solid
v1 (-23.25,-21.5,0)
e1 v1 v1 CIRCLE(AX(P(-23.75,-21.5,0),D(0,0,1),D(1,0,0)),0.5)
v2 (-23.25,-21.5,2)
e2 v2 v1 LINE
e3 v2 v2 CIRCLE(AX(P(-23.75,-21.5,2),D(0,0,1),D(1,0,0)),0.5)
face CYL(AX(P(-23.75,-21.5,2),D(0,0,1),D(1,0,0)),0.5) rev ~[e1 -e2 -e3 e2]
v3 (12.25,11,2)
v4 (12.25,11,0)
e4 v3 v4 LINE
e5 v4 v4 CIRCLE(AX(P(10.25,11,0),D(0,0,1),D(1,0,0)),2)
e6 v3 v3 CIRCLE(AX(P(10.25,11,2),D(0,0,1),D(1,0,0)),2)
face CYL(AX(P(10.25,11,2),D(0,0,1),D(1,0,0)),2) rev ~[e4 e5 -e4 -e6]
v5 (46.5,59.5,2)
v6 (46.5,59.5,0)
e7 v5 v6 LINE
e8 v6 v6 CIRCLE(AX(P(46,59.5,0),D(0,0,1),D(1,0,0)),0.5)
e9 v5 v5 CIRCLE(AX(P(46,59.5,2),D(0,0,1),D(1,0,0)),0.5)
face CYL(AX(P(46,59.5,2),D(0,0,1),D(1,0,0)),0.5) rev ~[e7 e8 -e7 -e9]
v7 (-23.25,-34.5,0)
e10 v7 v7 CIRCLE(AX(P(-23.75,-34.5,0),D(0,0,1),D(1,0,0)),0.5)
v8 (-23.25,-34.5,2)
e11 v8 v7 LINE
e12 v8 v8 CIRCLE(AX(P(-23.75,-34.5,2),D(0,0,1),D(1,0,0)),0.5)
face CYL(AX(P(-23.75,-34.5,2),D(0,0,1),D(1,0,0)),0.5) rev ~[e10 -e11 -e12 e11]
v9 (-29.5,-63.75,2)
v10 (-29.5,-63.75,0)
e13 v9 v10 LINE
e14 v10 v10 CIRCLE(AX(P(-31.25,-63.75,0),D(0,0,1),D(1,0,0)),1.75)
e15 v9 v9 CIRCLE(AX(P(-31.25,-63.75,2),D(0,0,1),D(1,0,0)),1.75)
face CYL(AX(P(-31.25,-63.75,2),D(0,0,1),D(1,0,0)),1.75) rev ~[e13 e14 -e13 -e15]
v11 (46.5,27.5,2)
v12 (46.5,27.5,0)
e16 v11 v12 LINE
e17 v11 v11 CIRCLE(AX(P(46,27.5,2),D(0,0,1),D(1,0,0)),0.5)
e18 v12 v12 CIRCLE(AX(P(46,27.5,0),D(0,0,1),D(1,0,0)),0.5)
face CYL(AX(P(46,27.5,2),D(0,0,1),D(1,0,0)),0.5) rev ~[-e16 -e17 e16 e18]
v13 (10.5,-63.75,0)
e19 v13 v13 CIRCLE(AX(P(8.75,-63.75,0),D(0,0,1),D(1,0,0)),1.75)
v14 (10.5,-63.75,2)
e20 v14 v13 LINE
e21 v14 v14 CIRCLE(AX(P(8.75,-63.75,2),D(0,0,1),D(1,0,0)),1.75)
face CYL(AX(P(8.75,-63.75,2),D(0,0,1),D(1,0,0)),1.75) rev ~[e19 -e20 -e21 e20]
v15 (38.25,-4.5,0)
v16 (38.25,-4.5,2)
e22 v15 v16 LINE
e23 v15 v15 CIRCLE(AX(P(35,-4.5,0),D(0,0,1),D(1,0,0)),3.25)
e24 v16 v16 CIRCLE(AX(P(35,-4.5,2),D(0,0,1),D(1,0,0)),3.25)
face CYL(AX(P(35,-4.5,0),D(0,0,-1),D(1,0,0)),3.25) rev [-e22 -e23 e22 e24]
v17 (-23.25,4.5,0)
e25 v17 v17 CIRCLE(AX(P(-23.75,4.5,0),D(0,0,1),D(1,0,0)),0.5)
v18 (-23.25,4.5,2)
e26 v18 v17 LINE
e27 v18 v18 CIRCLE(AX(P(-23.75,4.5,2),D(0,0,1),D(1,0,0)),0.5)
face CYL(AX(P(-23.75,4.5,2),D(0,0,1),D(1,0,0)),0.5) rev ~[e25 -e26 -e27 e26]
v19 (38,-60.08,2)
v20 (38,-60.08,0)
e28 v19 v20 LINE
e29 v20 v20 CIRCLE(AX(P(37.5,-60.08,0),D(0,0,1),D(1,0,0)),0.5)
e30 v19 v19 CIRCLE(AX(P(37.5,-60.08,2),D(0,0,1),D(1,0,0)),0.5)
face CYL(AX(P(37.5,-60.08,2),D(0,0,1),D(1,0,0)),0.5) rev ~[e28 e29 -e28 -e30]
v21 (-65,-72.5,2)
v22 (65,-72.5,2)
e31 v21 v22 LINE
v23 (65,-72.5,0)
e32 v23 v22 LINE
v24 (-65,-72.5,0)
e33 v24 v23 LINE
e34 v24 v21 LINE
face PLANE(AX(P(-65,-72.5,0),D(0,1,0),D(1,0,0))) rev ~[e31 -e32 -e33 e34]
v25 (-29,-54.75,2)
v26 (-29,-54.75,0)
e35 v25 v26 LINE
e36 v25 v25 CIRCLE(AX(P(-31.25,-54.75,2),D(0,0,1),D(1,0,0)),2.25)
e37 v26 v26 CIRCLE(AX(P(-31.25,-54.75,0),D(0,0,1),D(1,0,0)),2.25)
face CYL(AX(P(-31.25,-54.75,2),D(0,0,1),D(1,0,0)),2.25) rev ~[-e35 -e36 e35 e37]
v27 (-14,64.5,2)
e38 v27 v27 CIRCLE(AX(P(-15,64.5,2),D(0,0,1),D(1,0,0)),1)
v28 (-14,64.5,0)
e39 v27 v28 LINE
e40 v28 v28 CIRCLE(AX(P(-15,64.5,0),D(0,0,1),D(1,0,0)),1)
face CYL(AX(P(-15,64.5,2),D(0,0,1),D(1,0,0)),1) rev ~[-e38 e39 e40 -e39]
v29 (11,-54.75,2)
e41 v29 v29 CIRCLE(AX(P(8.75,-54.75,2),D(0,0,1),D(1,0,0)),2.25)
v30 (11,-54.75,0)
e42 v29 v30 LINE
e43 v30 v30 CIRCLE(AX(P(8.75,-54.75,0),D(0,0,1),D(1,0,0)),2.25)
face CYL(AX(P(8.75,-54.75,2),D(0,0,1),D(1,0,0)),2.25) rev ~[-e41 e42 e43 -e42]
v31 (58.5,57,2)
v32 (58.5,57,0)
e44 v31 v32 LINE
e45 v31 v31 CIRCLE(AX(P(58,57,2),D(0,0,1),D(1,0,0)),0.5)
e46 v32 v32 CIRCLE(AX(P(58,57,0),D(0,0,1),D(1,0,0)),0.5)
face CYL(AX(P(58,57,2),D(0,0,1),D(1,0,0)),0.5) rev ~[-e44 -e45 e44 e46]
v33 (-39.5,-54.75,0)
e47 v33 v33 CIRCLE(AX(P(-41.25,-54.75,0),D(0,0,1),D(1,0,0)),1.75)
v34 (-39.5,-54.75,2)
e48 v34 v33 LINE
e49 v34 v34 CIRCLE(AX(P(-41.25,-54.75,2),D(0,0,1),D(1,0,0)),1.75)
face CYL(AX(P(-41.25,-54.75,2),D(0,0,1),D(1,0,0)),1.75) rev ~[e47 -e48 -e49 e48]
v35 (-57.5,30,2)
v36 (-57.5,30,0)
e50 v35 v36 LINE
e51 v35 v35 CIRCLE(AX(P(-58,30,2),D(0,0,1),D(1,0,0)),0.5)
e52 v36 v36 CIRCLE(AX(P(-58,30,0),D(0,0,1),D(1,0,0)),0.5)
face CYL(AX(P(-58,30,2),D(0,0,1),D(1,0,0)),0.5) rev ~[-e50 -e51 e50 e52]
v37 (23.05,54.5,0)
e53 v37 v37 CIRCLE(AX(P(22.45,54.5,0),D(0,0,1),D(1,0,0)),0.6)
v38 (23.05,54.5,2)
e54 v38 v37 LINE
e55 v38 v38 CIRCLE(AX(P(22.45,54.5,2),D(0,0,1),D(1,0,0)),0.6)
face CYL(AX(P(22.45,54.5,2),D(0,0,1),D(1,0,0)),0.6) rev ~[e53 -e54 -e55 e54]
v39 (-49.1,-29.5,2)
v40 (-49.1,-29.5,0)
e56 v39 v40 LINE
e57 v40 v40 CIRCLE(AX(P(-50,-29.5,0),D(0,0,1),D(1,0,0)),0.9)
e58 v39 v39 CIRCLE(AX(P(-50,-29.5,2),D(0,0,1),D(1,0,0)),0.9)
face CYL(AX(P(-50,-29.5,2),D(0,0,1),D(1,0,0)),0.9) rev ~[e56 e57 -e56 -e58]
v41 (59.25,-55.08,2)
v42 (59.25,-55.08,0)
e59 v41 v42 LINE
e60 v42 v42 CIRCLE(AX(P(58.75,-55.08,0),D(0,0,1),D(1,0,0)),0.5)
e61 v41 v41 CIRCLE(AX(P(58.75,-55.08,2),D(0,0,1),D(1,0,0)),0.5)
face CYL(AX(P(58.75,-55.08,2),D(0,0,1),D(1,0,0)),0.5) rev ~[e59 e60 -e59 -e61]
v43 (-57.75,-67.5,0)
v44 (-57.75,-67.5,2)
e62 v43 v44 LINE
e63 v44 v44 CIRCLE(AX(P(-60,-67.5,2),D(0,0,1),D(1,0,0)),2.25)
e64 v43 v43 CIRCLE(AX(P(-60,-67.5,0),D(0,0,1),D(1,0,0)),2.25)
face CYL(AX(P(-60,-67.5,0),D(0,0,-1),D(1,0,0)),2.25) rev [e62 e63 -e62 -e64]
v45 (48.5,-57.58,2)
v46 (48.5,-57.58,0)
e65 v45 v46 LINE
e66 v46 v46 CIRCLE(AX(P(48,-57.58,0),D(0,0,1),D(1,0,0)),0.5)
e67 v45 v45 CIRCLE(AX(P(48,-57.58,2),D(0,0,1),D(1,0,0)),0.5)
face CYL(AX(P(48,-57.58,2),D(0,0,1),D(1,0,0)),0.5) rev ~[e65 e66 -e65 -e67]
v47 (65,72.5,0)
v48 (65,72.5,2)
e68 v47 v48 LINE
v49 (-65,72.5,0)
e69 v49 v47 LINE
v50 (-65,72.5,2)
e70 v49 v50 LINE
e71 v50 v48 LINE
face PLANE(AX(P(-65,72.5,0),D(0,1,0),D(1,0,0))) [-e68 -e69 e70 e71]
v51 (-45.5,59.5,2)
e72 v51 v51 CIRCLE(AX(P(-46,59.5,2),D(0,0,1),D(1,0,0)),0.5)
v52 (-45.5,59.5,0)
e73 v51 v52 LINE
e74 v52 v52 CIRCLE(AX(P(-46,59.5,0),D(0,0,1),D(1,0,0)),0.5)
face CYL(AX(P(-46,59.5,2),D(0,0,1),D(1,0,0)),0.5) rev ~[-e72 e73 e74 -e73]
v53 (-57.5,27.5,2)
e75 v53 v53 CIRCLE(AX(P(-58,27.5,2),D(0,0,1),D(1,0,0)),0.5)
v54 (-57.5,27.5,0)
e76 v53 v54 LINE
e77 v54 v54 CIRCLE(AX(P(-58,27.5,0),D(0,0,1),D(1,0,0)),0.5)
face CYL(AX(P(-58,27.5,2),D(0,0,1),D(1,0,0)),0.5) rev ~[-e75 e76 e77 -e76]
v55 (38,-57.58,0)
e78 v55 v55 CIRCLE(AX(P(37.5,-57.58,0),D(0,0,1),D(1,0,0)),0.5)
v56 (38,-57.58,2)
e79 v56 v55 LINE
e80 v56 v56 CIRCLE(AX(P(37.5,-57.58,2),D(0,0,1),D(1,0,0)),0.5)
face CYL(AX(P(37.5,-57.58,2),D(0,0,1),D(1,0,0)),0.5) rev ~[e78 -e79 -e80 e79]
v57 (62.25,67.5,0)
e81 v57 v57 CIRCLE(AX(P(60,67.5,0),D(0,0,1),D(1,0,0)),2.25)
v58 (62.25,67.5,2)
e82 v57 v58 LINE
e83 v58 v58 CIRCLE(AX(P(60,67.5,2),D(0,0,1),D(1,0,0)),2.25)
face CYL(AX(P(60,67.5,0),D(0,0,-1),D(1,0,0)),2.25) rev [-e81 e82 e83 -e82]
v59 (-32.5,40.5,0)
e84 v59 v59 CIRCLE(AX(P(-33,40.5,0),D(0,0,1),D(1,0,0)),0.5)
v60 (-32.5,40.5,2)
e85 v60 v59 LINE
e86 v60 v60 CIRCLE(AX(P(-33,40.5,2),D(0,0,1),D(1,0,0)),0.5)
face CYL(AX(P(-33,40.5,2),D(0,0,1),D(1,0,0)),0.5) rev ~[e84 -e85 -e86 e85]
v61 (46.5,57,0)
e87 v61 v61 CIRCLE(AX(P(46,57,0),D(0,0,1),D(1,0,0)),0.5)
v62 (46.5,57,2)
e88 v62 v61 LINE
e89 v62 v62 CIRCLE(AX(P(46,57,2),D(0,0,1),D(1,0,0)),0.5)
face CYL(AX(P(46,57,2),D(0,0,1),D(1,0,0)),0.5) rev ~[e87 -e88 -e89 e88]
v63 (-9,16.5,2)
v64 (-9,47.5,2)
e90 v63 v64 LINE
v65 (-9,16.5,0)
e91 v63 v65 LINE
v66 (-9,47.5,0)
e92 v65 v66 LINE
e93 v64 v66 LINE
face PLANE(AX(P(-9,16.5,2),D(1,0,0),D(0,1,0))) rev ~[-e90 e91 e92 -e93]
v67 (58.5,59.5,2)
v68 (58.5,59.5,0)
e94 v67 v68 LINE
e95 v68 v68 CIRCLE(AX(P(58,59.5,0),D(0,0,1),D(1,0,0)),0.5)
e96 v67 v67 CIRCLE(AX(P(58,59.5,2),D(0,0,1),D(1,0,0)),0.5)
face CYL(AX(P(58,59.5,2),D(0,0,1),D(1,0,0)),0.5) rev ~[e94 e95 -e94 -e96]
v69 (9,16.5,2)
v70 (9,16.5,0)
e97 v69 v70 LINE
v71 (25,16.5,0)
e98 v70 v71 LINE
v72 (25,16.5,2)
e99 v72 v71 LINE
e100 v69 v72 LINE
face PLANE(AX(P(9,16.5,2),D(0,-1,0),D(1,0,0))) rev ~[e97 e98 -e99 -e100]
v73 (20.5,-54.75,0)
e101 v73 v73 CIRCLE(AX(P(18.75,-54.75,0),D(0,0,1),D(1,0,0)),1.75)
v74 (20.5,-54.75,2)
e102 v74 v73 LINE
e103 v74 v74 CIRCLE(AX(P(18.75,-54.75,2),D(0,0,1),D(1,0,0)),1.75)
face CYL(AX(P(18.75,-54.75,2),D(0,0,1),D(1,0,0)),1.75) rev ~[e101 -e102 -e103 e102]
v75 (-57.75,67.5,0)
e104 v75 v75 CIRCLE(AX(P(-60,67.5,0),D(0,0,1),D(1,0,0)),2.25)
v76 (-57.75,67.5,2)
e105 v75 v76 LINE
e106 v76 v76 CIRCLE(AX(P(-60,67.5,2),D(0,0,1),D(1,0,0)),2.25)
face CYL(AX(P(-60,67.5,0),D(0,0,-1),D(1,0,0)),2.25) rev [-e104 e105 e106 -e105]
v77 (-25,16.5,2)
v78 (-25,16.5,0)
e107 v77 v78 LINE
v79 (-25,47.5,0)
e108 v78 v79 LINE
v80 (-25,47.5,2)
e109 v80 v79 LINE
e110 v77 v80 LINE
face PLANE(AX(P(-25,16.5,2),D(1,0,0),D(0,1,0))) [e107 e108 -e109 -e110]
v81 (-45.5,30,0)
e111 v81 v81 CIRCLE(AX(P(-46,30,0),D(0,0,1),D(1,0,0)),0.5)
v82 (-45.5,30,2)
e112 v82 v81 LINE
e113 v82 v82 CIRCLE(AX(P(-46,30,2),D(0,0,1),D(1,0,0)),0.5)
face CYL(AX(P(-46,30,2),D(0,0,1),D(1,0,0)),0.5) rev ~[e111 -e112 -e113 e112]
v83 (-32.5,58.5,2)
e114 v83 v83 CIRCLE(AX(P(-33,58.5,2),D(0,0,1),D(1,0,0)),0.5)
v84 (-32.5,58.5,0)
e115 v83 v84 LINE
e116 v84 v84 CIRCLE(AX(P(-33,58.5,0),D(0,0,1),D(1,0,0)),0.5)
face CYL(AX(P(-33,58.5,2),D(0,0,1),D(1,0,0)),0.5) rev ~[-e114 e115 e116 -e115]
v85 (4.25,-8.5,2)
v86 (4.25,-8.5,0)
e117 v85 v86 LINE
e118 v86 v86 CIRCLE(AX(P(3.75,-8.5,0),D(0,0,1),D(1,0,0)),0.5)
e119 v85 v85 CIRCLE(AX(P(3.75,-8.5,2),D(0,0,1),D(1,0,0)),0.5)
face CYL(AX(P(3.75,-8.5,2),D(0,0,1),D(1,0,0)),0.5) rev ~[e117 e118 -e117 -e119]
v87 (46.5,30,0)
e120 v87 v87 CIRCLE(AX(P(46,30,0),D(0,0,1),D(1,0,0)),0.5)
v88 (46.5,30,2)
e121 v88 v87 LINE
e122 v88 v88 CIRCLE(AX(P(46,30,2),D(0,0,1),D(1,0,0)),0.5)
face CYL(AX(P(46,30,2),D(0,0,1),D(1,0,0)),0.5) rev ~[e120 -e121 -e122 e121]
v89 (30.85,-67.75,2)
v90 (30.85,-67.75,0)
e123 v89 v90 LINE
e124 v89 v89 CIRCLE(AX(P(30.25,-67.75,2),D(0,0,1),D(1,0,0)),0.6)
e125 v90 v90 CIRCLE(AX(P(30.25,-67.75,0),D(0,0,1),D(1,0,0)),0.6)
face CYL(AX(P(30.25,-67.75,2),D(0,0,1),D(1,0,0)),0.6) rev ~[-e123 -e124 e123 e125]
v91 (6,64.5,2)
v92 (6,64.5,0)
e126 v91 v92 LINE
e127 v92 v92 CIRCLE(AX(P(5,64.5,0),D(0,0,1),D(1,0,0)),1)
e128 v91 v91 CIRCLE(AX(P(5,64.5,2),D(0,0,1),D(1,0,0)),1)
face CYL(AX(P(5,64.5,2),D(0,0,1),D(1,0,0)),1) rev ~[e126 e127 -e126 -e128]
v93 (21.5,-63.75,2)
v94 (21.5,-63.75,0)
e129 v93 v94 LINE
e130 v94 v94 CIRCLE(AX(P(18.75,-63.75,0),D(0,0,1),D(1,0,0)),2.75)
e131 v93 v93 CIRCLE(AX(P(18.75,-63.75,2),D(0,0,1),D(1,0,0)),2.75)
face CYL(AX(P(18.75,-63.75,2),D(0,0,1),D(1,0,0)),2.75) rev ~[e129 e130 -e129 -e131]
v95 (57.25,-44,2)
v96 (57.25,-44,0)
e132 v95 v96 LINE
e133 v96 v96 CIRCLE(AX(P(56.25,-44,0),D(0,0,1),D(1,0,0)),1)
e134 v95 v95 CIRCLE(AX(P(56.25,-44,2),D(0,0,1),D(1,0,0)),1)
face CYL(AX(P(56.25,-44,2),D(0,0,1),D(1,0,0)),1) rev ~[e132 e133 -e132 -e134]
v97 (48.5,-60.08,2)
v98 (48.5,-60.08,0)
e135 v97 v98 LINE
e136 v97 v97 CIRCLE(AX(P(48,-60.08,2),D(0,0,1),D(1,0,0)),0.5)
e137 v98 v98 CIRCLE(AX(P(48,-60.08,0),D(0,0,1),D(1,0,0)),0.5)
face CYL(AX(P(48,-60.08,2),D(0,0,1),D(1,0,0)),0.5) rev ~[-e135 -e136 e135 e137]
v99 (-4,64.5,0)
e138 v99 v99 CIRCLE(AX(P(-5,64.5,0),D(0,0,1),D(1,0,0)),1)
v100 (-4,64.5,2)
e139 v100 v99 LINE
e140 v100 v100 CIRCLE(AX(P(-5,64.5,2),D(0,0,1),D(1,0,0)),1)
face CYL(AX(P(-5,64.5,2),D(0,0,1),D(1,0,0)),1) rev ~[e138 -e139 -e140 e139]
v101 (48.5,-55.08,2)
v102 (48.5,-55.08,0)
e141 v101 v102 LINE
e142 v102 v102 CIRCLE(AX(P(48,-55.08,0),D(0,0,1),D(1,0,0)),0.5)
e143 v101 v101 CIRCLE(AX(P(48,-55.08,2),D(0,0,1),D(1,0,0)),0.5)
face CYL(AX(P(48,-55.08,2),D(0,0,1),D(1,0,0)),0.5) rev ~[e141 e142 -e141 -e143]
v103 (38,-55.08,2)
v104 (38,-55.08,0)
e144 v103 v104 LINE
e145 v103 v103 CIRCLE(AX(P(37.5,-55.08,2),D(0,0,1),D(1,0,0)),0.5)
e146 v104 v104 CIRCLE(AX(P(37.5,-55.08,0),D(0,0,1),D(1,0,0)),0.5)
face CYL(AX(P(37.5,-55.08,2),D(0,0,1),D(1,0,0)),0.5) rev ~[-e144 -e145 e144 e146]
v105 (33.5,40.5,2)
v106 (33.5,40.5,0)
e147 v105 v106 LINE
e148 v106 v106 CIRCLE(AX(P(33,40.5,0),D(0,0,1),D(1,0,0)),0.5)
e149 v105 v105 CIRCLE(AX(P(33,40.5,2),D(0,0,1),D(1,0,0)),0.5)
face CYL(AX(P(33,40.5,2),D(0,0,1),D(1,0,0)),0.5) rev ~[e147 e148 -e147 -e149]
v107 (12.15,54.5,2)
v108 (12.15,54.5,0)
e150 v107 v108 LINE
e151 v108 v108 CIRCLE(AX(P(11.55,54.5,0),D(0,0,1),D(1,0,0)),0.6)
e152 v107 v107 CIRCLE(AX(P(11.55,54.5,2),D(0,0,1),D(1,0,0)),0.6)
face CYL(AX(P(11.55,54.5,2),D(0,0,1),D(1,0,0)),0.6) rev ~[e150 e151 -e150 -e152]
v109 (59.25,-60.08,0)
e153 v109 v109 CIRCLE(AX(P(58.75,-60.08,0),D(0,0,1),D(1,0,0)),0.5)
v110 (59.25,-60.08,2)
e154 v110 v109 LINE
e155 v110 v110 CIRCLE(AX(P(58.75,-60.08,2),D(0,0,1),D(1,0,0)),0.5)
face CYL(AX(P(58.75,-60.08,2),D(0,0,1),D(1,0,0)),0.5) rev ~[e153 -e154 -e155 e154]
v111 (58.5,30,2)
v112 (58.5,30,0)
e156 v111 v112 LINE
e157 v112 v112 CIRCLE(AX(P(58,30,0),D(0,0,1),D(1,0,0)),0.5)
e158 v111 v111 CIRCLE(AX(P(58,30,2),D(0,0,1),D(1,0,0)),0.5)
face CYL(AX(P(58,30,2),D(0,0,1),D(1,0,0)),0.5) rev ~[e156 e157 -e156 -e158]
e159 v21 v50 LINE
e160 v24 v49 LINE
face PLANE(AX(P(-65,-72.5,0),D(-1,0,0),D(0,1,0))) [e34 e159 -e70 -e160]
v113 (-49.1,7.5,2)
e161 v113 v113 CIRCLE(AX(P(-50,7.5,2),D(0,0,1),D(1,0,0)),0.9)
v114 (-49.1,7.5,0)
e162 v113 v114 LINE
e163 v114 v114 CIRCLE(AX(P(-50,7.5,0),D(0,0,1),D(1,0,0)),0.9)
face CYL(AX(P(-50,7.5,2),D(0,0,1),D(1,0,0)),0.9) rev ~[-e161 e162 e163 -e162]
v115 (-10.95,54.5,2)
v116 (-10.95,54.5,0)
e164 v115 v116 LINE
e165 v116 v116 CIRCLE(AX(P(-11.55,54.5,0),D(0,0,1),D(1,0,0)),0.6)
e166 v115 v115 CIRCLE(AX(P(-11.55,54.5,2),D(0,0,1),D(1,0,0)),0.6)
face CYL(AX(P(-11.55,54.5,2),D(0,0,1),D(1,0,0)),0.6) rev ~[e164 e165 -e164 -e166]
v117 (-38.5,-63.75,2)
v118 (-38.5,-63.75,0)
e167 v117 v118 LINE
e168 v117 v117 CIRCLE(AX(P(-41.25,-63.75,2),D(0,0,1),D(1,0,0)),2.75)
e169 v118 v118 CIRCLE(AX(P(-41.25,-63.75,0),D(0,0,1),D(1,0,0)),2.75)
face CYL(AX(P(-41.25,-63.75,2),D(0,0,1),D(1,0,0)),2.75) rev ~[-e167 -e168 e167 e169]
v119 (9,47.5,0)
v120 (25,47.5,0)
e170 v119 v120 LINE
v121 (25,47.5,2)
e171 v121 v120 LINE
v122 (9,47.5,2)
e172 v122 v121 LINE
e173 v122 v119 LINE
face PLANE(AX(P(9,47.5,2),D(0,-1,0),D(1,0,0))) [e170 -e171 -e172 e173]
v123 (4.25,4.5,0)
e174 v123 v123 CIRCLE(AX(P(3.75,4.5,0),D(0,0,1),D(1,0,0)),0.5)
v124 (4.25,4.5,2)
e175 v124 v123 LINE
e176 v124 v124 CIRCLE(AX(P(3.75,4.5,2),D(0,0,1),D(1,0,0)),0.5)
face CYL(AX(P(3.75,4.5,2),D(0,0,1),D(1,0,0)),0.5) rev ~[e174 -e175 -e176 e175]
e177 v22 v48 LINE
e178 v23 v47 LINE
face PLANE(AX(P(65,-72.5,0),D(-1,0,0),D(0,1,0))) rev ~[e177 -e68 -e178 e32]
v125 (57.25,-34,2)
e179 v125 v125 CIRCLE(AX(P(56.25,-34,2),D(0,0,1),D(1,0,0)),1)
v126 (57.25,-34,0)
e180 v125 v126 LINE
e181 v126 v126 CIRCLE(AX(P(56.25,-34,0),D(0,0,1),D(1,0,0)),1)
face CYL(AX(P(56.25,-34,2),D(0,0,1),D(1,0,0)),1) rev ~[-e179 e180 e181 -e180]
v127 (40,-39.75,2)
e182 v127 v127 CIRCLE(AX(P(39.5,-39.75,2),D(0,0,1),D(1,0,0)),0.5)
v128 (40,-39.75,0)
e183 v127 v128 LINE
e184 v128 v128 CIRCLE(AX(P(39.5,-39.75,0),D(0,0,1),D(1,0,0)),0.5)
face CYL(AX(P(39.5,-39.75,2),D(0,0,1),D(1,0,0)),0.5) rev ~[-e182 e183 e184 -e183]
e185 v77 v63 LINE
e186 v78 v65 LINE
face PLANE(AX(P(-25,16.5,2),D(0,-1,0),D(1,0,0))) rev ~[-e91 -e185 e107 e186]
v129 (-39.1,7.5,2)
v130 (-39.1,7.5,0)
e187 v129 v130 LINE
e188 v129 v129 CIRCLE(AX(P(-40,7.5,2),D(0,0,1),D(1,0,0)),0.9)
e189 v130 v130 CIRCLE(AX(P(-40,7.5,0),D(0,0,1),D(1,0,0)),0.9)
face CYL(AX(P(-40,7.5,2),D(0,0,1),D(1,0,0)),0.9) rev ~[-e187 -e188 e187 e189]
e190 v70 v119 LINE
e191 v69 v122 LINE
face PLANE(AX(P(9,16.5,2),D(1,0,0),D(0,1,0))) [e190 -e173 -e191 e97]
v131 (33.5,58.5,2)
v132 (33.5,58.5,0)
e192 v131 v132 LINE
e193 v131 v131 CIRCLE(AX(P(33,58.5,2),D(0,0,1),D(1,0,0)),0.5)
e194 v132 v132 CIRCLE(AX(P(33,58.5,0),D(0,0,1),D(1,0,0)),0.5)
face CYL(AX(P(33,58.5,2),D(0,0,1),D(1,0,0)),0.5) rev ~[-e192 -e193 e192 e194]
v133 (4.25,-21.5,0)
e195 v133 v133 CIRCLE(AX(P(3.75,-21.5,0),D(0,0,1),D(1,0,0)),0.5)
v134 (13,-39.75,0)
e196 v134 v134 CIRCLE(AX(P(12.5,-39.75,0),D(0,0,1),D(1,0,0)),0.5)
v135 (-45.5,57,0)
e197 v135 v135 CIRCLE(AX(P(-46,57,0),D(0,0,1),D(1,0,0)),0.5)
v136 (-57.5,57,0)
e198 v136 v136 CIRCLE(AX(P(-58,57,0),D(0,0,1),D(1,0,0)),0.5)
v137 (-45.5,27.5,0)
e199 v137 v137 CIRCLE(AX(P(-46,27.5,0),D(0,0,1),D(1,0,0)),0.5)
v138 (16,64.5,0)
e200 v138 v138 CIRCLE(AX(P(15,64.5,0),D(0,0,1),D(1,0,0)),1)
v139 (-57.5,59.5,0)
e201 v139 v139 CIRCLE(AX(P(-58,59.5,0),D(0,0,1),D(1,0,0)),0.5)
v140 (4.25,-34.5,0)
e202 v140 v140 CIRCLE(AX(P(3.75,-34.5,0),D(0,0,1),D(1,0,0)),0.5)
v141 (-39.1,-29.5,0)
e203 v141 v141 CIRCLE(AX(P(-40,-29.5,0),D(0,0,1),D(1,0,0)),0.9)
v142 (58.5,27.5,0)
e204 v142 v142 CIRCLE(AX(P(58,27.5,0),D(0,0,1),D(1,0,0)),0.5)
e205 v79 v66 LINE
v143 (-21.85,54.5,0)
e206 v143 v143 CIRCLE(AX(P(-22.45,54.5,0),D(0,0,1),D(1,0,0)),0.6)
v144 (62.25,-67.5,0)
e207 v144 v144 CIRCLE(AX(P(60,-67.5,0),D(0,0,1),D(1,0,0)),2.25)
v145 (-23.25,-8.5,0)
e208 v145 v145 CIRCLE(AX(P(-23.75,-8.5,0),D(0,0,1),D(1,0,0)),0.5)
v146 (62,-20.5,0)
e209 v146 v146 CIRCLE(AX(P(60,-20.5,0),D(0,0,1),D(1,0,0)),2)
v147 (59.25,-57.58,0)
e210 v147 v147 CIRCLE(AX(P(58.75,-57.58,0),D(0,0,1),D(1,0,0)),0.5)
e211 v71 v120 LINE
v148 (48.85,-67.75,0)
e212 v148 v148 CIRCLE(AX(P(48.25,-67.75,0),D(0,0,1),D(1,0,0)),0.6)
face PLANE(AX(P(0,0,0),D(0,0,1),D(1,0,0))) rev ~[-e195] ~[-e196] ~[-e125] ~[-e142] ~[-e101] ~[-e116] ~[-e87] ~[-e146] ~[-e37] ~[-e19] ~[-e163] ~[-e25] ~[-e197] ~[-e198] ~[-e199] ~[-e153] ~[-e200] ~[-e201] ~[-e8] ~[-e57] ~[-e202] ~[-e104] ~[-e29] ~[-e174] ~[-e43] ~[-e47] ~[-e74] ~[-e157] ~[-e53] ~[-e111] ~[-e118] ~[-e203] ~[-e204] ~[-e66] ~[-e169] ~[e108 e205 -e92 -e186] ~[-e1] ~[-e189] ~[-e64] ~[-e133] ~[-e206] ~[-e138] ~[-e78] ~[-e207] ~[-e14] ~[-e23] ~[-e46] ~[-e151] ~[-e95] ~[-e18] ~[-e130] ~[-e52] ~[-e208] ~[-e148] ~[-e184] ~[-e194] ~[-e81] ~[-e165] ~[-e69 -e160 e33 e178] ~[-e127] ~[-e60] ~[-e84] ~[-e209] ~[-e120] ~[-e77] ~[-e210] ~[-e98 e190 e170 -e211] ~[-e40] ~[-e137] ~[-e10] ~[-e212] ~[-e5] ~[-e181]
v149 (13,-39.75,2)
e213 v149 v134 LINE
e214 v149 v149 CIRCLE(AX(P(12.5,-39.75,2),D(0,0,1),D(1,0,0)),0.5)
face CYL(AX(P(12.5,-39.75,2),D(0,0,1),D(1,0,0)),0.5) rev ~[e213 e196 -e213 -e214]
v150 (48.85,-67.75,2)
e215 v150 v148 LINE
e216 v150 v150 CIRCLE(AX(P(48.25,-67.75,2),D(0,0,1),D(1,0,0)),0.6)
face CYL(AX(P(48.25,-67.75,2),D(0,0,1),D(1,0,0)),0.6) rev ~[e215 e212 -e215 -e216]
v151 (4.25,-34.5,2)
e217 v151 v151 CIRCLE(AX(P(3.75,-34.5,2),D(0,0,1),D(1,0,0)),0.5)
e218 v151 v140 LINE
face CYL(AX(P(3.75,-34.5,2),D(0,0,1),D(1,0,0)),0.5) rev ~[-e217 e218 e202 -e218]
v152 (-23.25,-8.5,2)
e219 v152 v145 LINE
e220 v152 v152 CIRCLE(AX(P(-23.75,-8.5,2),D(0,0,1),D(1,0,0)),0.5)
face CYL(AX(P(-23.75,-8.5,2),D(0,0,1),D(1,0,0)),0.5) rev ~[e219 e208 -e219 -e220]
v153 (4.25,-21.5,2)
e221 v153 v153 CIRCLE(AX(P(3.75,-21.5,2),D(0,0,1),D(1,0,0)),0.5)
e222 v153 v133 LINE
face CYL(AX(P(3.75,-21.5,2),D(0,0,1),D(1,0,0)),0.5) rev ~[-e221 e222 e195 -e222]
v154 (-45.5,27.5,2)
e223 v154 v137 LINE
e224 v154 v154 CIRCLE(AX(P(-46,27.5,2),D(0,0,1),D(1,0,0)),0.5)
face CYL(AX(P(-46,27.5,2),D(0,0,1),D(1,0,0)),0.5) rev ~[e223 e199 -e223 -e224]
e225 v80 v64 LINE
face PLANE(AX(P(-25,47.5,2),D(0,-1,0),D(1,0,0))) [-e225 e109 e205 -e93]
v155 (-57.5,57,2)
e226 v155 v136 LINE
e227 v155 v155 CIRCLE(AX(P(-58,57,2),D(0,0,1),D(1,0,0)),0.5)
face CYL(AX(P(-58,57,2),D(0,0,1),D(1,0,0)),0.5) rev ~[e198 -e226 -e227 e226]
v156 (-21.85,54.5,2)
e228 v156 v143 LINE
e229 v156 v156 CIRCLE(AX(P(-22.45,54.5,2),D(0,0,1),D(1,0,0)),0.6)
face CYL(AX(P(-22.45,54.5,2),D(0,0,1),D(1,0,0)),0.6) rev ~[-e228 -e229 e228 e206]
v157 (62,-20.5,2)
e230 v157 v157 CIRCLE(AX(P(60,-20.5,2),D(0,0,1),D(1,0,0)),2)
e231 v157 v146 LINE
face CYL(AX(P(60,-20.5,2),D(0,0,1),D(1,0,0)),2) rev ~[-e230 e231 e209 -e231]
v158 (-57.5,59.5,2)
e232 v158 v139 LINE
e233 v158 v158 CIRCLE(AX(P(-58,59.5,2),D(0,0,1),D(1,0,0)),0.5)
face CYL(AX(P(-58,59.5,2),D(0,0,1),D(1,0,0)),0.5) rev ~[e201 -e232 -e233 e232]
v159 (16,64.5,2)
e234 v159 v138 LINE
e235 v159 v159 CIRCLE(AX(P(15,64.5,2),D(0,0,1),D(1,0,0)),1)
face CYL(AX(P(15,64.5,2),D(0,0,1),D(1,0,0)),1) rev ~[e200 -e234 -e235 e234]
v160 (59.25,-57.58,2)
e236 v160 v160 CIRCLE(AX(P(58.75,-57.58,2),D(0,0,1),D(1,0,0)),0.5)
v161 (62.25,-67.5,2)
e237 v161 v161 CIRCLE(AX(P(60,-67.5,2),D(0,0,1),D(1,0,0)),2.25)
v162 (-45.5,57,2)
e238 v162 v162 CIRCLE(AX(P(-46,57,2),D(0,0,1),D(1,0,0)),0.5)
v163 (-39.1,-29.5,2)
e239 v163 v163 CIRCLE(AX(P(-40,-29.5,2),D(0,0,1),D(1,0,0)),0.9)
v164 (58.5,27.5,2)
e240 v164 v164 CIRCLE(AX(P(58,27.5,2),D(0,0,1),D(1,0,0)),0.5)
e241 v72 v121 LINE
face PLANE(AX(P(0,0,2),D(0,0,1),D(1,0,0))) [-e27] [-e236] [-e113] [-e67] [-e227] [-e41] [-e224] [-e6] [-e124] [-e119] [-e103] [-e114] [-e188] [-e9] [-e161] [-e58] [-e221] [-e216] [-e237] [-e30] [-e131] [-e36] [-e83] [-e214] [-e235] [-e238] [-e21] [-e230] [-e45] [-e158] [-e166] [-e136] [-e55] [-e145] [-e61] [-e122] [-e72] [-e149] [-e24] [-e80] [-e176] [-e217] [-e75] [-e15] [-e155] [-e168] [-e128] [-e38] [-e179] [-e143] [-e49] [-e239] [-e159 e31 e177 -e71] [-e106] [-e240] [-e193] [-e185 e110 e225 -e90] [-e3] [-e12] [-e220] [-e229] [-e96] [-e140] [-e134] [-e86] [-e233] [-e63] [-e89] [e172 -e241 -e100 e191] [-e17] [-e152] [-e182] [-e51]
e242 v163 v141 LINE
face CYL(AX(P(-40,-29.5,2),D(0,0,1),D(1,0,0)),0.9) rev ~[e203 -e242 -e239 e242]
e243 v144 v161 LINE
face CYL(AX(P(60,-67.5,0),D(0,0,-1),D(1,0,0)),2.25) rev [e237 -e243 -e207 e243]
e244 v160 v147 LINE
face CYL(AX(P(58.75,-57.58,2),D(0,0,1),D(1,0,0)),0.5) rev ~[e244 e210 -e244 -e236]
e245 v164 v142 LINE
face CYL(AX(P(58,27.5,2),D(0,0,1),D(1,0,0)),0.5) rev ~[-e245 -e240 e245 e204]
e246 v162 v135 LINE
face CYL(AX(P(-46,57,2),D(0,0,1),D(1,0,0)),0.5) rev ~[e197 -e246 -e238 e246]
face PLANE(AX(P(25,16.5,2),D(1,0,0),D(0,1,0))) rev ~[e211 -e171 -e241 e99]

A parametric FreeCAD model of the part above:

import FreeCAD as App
import Part
import Sketcher
from FreeCAD import Vector
Q = App.Units.Quantity


def add_polygon(sketch, points):
    """Adds a closed chain of lines whose ends are joined by coincident constraints."""
    first, n = sketch.GeometryCount, len(points)
    for a, b in zip(points, points[1:] + points[:1]):
        sketch.addGeometry(Part.LineSegment(App.Vector(*a, 0), App.Vector(*b, 0)), False)
    for i in range(n):
        sketch.addConstraint(Sketcher.Constraint("Coincident", first + i, 2, first + (i + 1) % n, 1))

doc = App.newDocument("Part")
body = doc.addObject("PartDesign::Body", "Body")

sketch1 = body.newObject("Sketcher::SketchObject", "Sketch")
sketch1.AttachmentSupport = (doc.getObject("XY_Plane"), [""])
sketch1.MapMode = "FlatFace"
add_polygon(sketch1, [(-65, 72.5), (-65, -72.5), (65, -72.5), (65, 72.5)])
sketch1.addGeometry(Part.Circle(Vector(-60, -67.5, 0), Vector(0, 0, 1), 2.2), False)
sketch1.addGeometry(Part.Circle(Vector(60, -67.5, 0), Vector(0, 0, 1), 2.2), False)
sketch1.addGeometry(Part.Circle(Vector(35, -4.5, 0), Vector(0, 0, 1), 3.2), False)
sketch1.addGeometry(Part.Circle(Vector(-60, 67.5, 0), Vector(0, 0, 1), 2.2), False)
sketch1.addGeometry(Part.Circle(Vector(60, 67.5, 0), Vector(0, 0, 1), 2.2), False)
sketch1.addConstraint(Sketcher.Constraint("Vertical", 0))
sketch1.addConstraint(Sketcher.Constraint("Horizontal", 1))
sketch1.addConstraint(Sketcher.Constraint("Vertical", 2))
sketch1.addConstraint(Sketcher.Constraint("Horizontal", 3))
sketch1.addConstraint(Sketcher.Constraint("Equal", 4, 5))
sketch1.addConstraint(Sketcher.Constraint("Equal", 5, 7))
sketch1.addConstraint(Sketcher.Constraint("Equal", 7, 8))
sketch1.addConstraint(Sketcher.Constraint("Symmetric", 5, 3, 7, 3, -1, 1))
sketch1.addConstraint(Sketcher.Constraint("Symmetric", 4, 3, 8, 3, -1, 1))
sketch1.addConstraint(Sketcher.Constraint("Symmetric", 0, 2, 2, 2, -1, 1))
sketch1.addConstraint(Sketcher.Constraint("Symmetric", 4, 3, 5, 3, -2))
sketch1.addConstraint(Sketcher.Constraint("Diameter", 4, Q("4.5 mm")))
sketch1.addConstraint(Sketcher.Constraint("Diameter", 6, Q("6.5 mm")))
sketch1.addConstraint(Sketcher.Constraint("DistanceX", 1, 1, 1, 2, Q("130 mm")))
sketch1.addConstraint(Sketcher.Constraint("DistanceY", 0, 2, 0, 1, Q("145 mm")))
sketch1.addConstraint(Sketcher.Constraint("DistanceX", 4, 3, -1, 1, Q("60 mm")))
sketch1.addConstraint(Sketcher.Constraint("DistanceX", -1, 1, 6, 3, Q("35 mm")))
sketch1.addConstraint(Sketcher.Constraint("DistanceY", 5, 3, 6, 3, Q("63 mm")))
sketch1.addConstraint(Sketcher.Constraint("DistanceY", 6, 3, 7, 3, Q("72 mm")))
pad1 = body.newObject("PartDesign::Pad", "Pad")
pad1.Profile = sketch1
pad1.Length = 2

sketch2 = body.newObject("Sketcher::SketchObject", "Sketch001")
sketch2.AttachmentSupport = (doc.getObject("XY_Plane"), [""])
sketch2.MapMode = "FlatFace"
sketch2.AttachmentOffset = App.Placement(Vector(0, 0, 2), App.Rotation())
sketch2.addGeometry(Part.Circle(Vector(-41.2, -54.8, 0), Vector(0, 0, 1), 1.8), False)
sketch2.addGeometry(Part.Circle(Vector(18.8, -54.8, 0), Vector(0, 0, 1), 1.8), False)
sketch2.addGeometry(Part.Circle(Vector(37.5, -55.1, 0), Vector(0, 0, 1), 0.5), False)
sketch2.addGeometry(Part.Circle(Vector(37.5, -57.6, 0), Vector(0, 0, 1), 0.5), False)
sketch2.addGeometry(Part.Circle(Vector(37.5, -60.1, 0), Vector(0, 0, 1), 0.5), False)
sketch2.addGeometry(Part.Circle(Vector(48, -57.6, 0), Vector(0, 0, 1), 0.5), False)
sketch2.addGeometry(Part.Circle(Vector(48, -60.1, 0), Vector(0, 0, 1), 0.5), False)
sketch2.addGeometry(Part.Circle(Vector(48, -55.1, 0), Vector(0, 0, 1), 0.5), False)
sketch2.addGeometry(Part.Circle(Vector(58.8, -55.1, 0), Vector(0, 0, 1), 0.5), False)
sketch2.addGeometry(Part.Circle(Vector(58.8, -57.6, 0), Vector(0, 0, 1), 0.5), False)
sketch2.addGeometry(Part.Circle(Vector(58.8, -60.1, 0), Vector(0, 0, 1), 0.5), False)
sketch2.addGeometry(Part.Circle(Vector(-15, 64.5, 0), Vector(0, 0, 1), 1), False)
sketch2.addGeometry(Part.Circle(Vector(-5, 64.5, 0), Vector(0, 0, 1), 1), False)
sketch2.addGeometry(Part.Circle(Vector(5, 64.5, 0), Vector(0, 0, 1), 1), False)
sketch2.addGeometry(Part.Circle(Vector(15, 64.5, 0), Vector(0, 0, 1), 1), False)
sketch2.addGeometry(Part.Circle(Vector(60, -20.5, 0), Vector(0, 0, 1), 2), False)
sketch2.addGeometry(Part.Circle(Vector(10.2, 11, 0), Vector(0, 0, 1), 2), False)
sketch2.addGeometry(Part.Circle(Vector(-41.2, -63.8, 0), Vector(0, 0, 1), 2.8), False)
sketch2.addGeometry(Part.Circle(Vector(18.8, -63.8, 0), Vector(0, 0, 1), 2.8), False)
sketch2.addGeometry(Part.Circle(Vector(-31.2, -63.8, 0), Vector(0, 0, 1), 1.8), False)
sketch2.addGeometry(Part.Circle(Vector(8.8, -63.8, 0), Vector(0, 0, 1), 1.8), False)
sketch2.addGeometry(Part.Circle(Vector(8.8, -54.8, 0), Vector(0, 0, 1), 2.2), False)
sketch2.addGeometry(Part.Circle(Vector(-31.2, -54.8, 0), Vector(0, 0, 1), 2.2), False)
sketch2.addConstraint(Sketcher.Constraint("Equal", 0, 1))
sketch2.addConstraint(Sketcher.Constraint("Equal", 2, 3))
sketch2.addConstraint(Sketcher.Constraint("Equal", 3, 4))
sketch2.addConstraint(Sketcher.Constraint("Equal", 4, 5))
sketch2.addConstraint(Sketcher.Constraint("Equal", 5, 6))
sketch2.addConstraint(Sketcher.Constraint("Equal", 6, 7))
sketch2.addConstraint(Sketcher.Constraint("Equal", 7, 8))
sketch2.addConstraint(Sketcher.Constraint("Equal", 8, 9))
sketch2.addConstraint(Sketcher.Constraint("Equal", 9, 10))
sketch2.addConstraint(Sketcher.Constraint("Equal", 11, 12))
sketch2.addConstraint(Sketcher.Constraint("Equal", 12, 13))
sketch2.addConstraint(Sketcher.Constraint("Equal", 13, 14))
sketch2.addConstraint(Sketcher.Constraint("Equal", 15, 16))
sketch2.addConstraint(Sketcher.Constraint("Equal", 17, 18))
sketch2.addConstraint(Sketcher.Constraint("Equal", 1, 19))
sketch2.addConstraint(Sketcher.Constraint("Equal", 19, 20))
sketch2.addConstraint(Sketcher.Constraint("Equal", 21, 22))
sketch2.addConstraint(Sketcher.Constraint("Symmetric", 12, 3, 13, 3, -2))
sketch2.addConstraint(Sketcher.Constraint("Symmetric", 11, 3, 14, 3, -2))
sketch2.addConstraint(Sketcher.Constraint("Horizontal", 0, 3, 1, 3))
sketch2.addConstraint(Sketcher.Constraint("Horizontal", 3, 3, 5, 3))
sketch2.addConstraint(Sketcher.Constraint("Horizontal", 4, 3, 6, 3))
sketch2.addConstraint(Sketcher.Constraint("Horizontal", 2, 3, 7, 3))
sketch2.addConstraint(Sketcher.Constraint("Horizontal", 7, 3, 8, 3))
sketch2.addConstraint(Sketcher.Constraint("Horizontal", 5, 3, 9, 3))
sketch2.addConstraint(Sketcher.Constraint("Horizontal", 6, 3, 10, 3))
sketch2.addConstraint(Sketcher.Constraint("Horizontal", 11, 3, 12, 3))
sketch2.addConstraint(Sketcher.Constraint("Horizontal", 17, 3, 18, 3))
sketch2.addConstraint(Sketcher.Constraint("Horizontal", 18, 3, 19, 3))
sketch2.addConstraint(Sketcher.Constraint("Horizontal", 19, 3, 20, 3))
sketch2.addConstraint(Sketcher.Constraint("Horizontal", 1, 3, 21, 3))
sketch2.addConstraint(Sketcher.Constraint("Horizontal", 21, 3, 22, 3))
sketch2.addConstraint(Sketcher.Constraint("Vertical", 2, 3, 3, 3))
sketch2.addConstraint(Sketcher.Constraint("Vertical", 3, 3, 4, 3))
sketch2.addConstraint(Sketcher.Constraint("Vertical", 5, 3, 6, 3))
sketch2.addConstraint(Sketcher.Constraint("Vertical", 6, 3, 7, 3))
sketch2.addConstraint(Sketcher.Constraint("Vertical", 8, 3, 9, 3))
sketch2.addConstraint(Sketcher.Constraint("Vertical", 9, 3, 10, 3))
sketch2.addConstraint(Sketcher.Constraint("Vertical", 0, 3, 17, 3))
sketch2.addConstraint(Sketcher.Constraint("Vertical", 1, 3, 18, 3))
sketch2.addConstraint(Sketcher.Constraint("Vertical", 20, 3, 21, 3))
sketch2.addConstraint(Sketcher.Constraint("Vertical", 19, 3, 22, 3))
sketch2.addConstraint(Sketcher.Constraint("Diameter", 2, Q("1 mm")))
sketch2.addConstraint(Sketcher.Constraint("Diameter", 11, Q("2 mm")))
sketch2.addConstraint(Sketcher.Constraint("Diameter", 15, Q("4 mm")))
sketch2.addConstraint(Sketcher.Constraint("Diameter", 0, Q("3.5 mm")))
sketch2.addConstraint(Sketcher.Constraint("Diameter", 17, Q("5.5 mm")))
sketch2.addConstraint(Sketcher.Constraint("Diameter", 21, Q("4.5 mm")))
sketch2.addConstraint(Sketcher.Constraint("DistanceX", -1, 1, 5, 3, Q("48 mm")))
sketch2.addConstraint(Sketcher.Constraint("DistanceX", 11, 3, -1, 1, Q("15 mm")))
sketch2.addConstraint(Sketcher.Constraint("DistanceX", 12, 3, -1, 1, Q("5 mm")))
sketch2.addConstraint(Sketcher.Constraint("DistanceX", -1, 1, 15, 3, Q("60 mm")))
sketch2.addConstraint(Sketcher.Constraint("DistanceY", -1, 1, 16, 3, Q("11 mm")))
sketch2.addConstraint(Sketcher.Constraint("DistanceX", 0, 3, 1, 3, Q("60 mm")))
sketch2.addConstraint(Sketcher.Constraint("DistanceY", 4, 3, 2, 3, Q("5 mm")))
sketch2.addConstraint(Sketcher.Constraint("DistanceY", 17, 3, 0, 3, Q("9 mm")))
sketch2.addConstraint(Sketcher.Constraint("DistanceX", 17, 3, 19, 3, Q("10 mm")))
sketch2.addConstraint(Sketcher.Constraint("DistanceX", 20, 3, 18, 3, Q("10 mm")))
sketch2.addConstraint(Sketcher.Constraint("DistanceX", -1, 1, 2, 3, Q("37.5 mm")))
sketch2.addConstraint(Sketcher.Constraint("DistanceY", -1, 1, 11, 3, Q("64.5 mm")))
sketch2.addConstraint(Sketcher.Constraint("DistanceY", 15, 3, -1, 1, Q("20.5 mm")))
sketch2.addConstraint(Sketcher.Constraint("DistanceY", 3, 3, 2, 3, Q("2.5 mm")))
sketch2.addConstraint(Sketcher.Constraint("DistanceX", 0, 3, -1, 1, Q("41.25 mm")))
sketch2.addConstraint(Sketcher.Constraint("DistanceY", 0, 3, -1, 1, Q("54.75 mm")))
sketch2.addConstraint(Sketcher.Constraint("DistanceY", 2, 3, -1, 1, Q("55.08 mm")))
sketch2.addConstraint(Sketcher.Constraint("DistanceX", -1, 1, 8, 3, Q("58.75 mm")))
sketch2.addConstraint(Sketcher.Constraint("DistanceX", -1, 1, 16, 3, Q("10.25 mm")))
pocket1 = body.newObject("PartDesign::Pocket", "Pocket")
pocket1.Profile = sketch2
pocket1.Length = 2

sketch3 = body.newObject("Sketcher::SketchObject", "Sketch002")
sketch3.AttachmentSupport = (doc.getObject("XY_Plane"), [""])
sketch3.MapMode = "FlatFace"
sketch3.AttachmentOffset = App.Placement(Vector(0, 0, 2), App.Rotation())
sketch3.addGeometry(Part.Circle(Vector(56.2, -34, 0), Vector(0, 0, 1), 1), False)
sketch3.addGeometry(Part.Circle(Vector(-22.4, 54.5, 0), Vector(0, 0, 1), 0.6), False)
sketch3.addGeometry(Part.Circle(Vector(-11.6, 54.5, 0), Vector(0, 0, 1), 0.6), False)
sketch3.addGeometry(Part.Circle(Vector(11.6, 54.5, 0), Vector(0, 0, 1), 0.6), False)
sketch3.addGeometry(Part.Circle(Vector(22.4, 54.5, 0), Vector(0, 0, 1), 0.6), False)
sketch3.addGeometry(Part.Circle(Vector(56.2, -44, 0), Vector(0, 0, 1), 1), False)
add_polygon(sketch3, [(9, 47.5), (9, 16.5), (25, 16.5), (25, 47.5)])
add_polygon(sketch3, [(-25, 47.5), (-25, 16.5), (-9, 16.5), (-9, 47.5)])
sketch3.addConstraint(Sketcher.Constraint("Vertical", 6))
sketch3.addConstraint(Sketcher.Constraint("Horizontal", 7))
sketch3.addConstraint(Sketcher.Constraint("Vertical", 8))
sketch3.addConstraint(Sketcher.Constraint("Horizontal", 9))
sketch3.addConstraint(Sketcher.Constraint("Vertical", 10))
sketch3.addConstraint(Sketcher.Constraint("Horizontal", 11))
sketch3.addConstraint(Sketcher.Constraint("Vertical", 12))
sketch3.addConstraint(Sketcher.Constraint("Horizontal", 13))
sketch3.addConstraint(Sketcher.Constraint("Equal", 1, 2))
sketch3.addConstraint(Sketcher.Constraint("Equal", 2, 3))
sketch3.addConstraint(Sketcher.Constraint("Equal", 3, 4))
sketch3.addConstraint(Sketcher.Constraint("Equal", 0, 5))
sketch3.addConstraint(Sketcher.Constraint("Symmetric", 2, 3, 3, 3, -2))
sketch3.addConstraint(Sketcher.Constraint("Symmetric", 1, 3, 4, 3, -2))
sketch3.addConstraint(Sketcher.Constraint("Symmetric", 7, 2, 10, 2, -2))
sketch3.addConstraint(Sketcher.Constraint("Symmetric", 9, 2, 12, 2, -2))
sketch3.addConstraint(Sketcher.Constraint("Horizontal", 1, 3, 2, 3))
sketch3.addConstraint(Sketcher.Constraint("Vertical", 0, 3, 5, 3))
sketch3.addConstraint(Sketcher.Constraint("Diameter", 0, Q("2 mm")))
sketch3.addConstraint(Sketcher.Constraint("Diameter", 1, Q("1.2 mm")))
sketch3.addConstraint(Sketcher.Constraint("DistanceX", 7, 1, 7, 2, Q("16 mm")))
sketch3.addConstraint(Sketcher.Constraint("DistanceY", 6, 2, 6, 1, Q("31 mm")))
sketch3.addConstraint(Sketcher.Constraint("DistanceY", 0, 3, -1, 1, Q("34 mm")))
sketch3.addConstraint(Sketcher.Constraint("DistanceY", 5, 3, -1, 1, Q("44 mm")))
sketch3.addConstraint(Sketcher.Constraint("DistanceX", -1, 1, 6, 2, Q("9 mm")))
sketch3.addConstraint(Sketcher.Constraint("DistanceX", 1, 3, 3, 3, Q("34 mm")))
sketch3.addConstraint(Sketcher.Constraint("DistanceY", 6, 2, 3, 3, Q("38 mm")))
sketch3.addConstraint(Sketcher.Constraint("DistanceY", -1, 1, 1, 3, Q("54.5 mm")))
sketch3.addConstraint(Sketcher.Constraint("DistanceX", 1, 3, 0, 3, Q("78.7 mm")))
sketch3.addConstraint(Sketcher.Constraint("DistanceX", 1, 3, 2, 3, Q("10.9 mm")))
pocket2 = body.newObject("PartDesign::Pocket", "Pocket001")
pocket2.Profile = sketch3
pocket2.Length = 2

sketch4 = body.newObject("Sketcher::SketchObject", "Sketch003")
sketch4.AttachmentSupport = (doc.getObject("XY_Plane"), [""])
sketch4.MapMode = "FlatFace"
sketch4.AttachmentOffset = App.Placement(Vector(0, 0, 2), App.Rotation())
sketch4.addGeometry(Part.Circle(Vector(-50, 7.5, 0), Vector(0, 0, 1), 0.9), False)
sketch4.addGeometry(Part.Circle(Vector(-40, 7.5, 0), Vector(0, 0, 1), 0.9), False)
sketch4.addGeometry(Part.Circle(Vector(-40, -29.5, 0), Vector(0, 0, 1), 0.9), False)
sketch4.addGeometry(Part.Circle(Vector(-50, -29.5, 0), Vector(0, 0, 1), 0.9), False)
sketch4.addGeometry(Part.Circle(Vector(-23.8, -21.5, 0), Vector(0, 0, 1), 0.5), False)
sketch4.addGeometry(Part.Circle(Vector(3.8, -21.5, 0), Vector(0, 0, 1), 0.5), False)
sketch4.addGeometry(Part.Circle(Vector(-23.8, -34.5, 0), Vector(0, 0, 1), 0.5), False)
sketch4.addGeometry(Part.Circle(Vector(3.8, -34.5, 0), Vector(0, 0, 1), 0.5), False)
sketch4.addGeometry(Part.Circle(Vector(-23.8, -8.5, 0), Vector(0, 0, 1), 0.5), False)
sketch4.addGeometry(Part.Circle(Vector(3.8, -8.5, 0), Vector(0, 0, 1), 0.5), False)
sketch4.addGeometry(Part.Circle(Vector(-23.8, 4.5, 0), Vector(0, 0, 1), 0.5), False)
sketch4.addGeometry(Part.Circle(Vector(3.8, 4.5, 0), Vector(0, 0, 1), 0.5), False)
sketch4.addGeometry(Part.Circle(Vector(30.2, -67.8, 0), Vector(0, 0, 1), 0.6), False)
sketch4.addGeometry(Part.Circle(Vector(48.2, -67.8, 0), Vector(0, 0, 1), 0.6), False)
sketch4.addGeometry(Part.Circle(Vector(33, 40.5, 0), Vector(0, 0, 1), 0.5), False)
sketch4.addGeometry(Part.Circle(Vector(33, 58.5, 0), Vector(0, 0, 1), 0.5), False)
sketch4.addGeometry(Part.Circle(Vector(-33, 40.5, 0), Vector(0, 0, 1), 0.5), False)
sketch4.addGeometry(Part.Circle(Vector(-33, 58.5, 0), Vector(0, 0, 1), 0.5), False)
sketch4.addConstraint(Sketcher.Constraint("Equal", 0, 1))
sketch4.addConstraint(Sketcher.Constraint("Equal", 1, 2))
sketch4.addConstraint(Sketcher.Constraint("Equal", 2, 3))
sketch4.addConstraint(Sketcher.Constraint("Equal", 4, 5))
sketch4.addConstraint(Sketcher.Constraint("Equal", 5, 6))
sketch4.addConstraint(Sketcher.Constraint("Equal", 6, 7))
sketch4.addConstraint(Sketcher.Constraint("Equal", 7, 8))
sketch4.addConstraint(Sketcher.Constraint("Equal", 8, 9))
sketch4.addConstraint(Sketcher.Constraint("Equal", 9, 10))
sketch4.addConstraint(Sketcher.Constraint("Equal", 10, 11))
sketch4.addConstraint(Sketcher.Constraint("Equal", 12, 13))
sketch4.addConstraint(Sketcher.Constraint("Equal", 11, 14))
sketch4.addConstraint(Sketcher.Constraint("Equal", 14, 15))
sketch4.addConstraint(Sketcher.Constraint("Equal", 15, 16))
sketch4.addConstraint(Sketcher.Constraint("Equal", 16, 17))
sketch4.addConstraint(Sketcher.Constraint("Symmetric", 14, 3, 16, 3, -2))
sketch4.addConstraint(Sketcher.Constraint("Symmetric", 15, 3, 17, 3, -2))
sketch4.addConstraint(Sketcher.Constraint("Horizontal", 0, 3, 1, 3))
sketch4.addConstraint(Sketcher.Constraint("Horizontal", 2, 3, 3, 3))
sketch4.addConstraint(Sketcher.Constraint("Horizontal", 4, 3, 5, 3))
sketch4.addConstraint(Sketcher.Constraint("Horizontal", 6, 3, 7, 3))
sketch4.addConstraint(Sketcher.Constraint("Horizontal", 8, 3, 9, 3))
sketch4.addConstraint(Sketcher.Constraint("Horizontal", 10, 3, 11, 3))
sketch4.addConstraint(Sketcher.Constraint("Horizontal", 12, 3, 13, 3))
sketch4.addConstraint(Sketcher.Constraint("Vertical", 1, 3, 2, 3))
sketch4.addConstraint(Sketcher.Constraint("Vertical", 0, 3, 3, 3))
sketch4.addConstraint(Sketcher.Constraint("Vertical", 4, 3, 6, 3))
sketch4.addConstraint(Sketcher.Constraint("Vertical", 5, 3, 7, 3))
sketch4.addConstraint(Sketcher.Constraint("Vertical", 6, 3, 8, 3))
sketch4.addConstraint(Sketcher.Constraint("Vertical", 7, 3, 9, 3))
sketch4.addConstraint(Sketcher.Constraint("Vertical", 8, 3, 10, 3))
sketch4.addConstraint(Sketcher.Constraint("Vertical", 9, 3, 11, 3))
sketch4.addConstraint(Sketcher.Constraint("Vertical", 14, 3, 15, 3))
sketch4.addConstraint(Sketcher.Constraint("Diameter", 4, Q("1 mm")))
sketch4.addConstraint(Sketcher.Constraint("Diameter", 0, Q("1.8 mm")))
sketch4.addConstraint(Sketcher.Constraint("Diameter", 12, Q("1.2 mm")))
sketch4.addConstraint(Sketcher.Constraint("DistanceX", 0, 3, -1, 1, Q("50 mm")))
sketch4.addConstraint(Sketcher.Constraint("DistanceX", 1, 3, -1, 1, Q("40 mm")))
sketch4.addConstraint(Sketcher.Constraint("DistanceX", -1, 1, 14, 3, Q("33 mm")))
sketch4.addConstraint(Sketcher.Constraint("DistanceY", 2, 3, 1, 3, Q("37 mm")))
sketch4.addConstraint(Sketcher.Constraint("DistanceY", 2, 3, 4, 3, Q("8 mm")))
sketch4.addConstraint(Sketcher.Constraint("DistanceY", 6, 3, 4, 3, Q("13 mm")))
sketch4.addConstraint(Sketcher.Constraint("DistanceY", 4, 3, 8, 3, Q("13 mm")))
sketch4.addConstraint(Sketcher.Constraint("DistanceY", 8, 3, 10, 3, Q("13 mm")))
sketch4.addConstraint(Sketcher.Constraint("DistanceX", 6, 3, 12, 3, Q("54 mm")))
sketch4.addConstraint(Sketcher.Constraint("DistanceX", 12, 3, 13, 3, Q("18 mm")))
sketch4.addConstraint(Sketcher.Constraint("DistanceY", 11, 3, 14, 3, Q("36 mm")))
sketch4.addConstraint(Sketcher.Constraint("DistanceY", 14, 3, 15, 3, Q("18 mm")))
sketch4.addConstraint(Sketcher.Constraint("DistanceY", -1, 1, 0, 3, Q("7.5 mm")))
sketch4.addConstraint(Sketcher.Constraint("DistanceX", 4, 3, 5, 3, Q("27.5 mm")))
sketch4.addConstraint(Sketcher.Constraint("DistanceX", 4, 3, -1, 1, Q("23.75 mm")))
sketch4.addConstraint(Sketcher.Constraint("DistanceY", 12, 3, -1, 1, Q("67.75 mm")))
pocket3 = body.newObject("PartDesign::Pocket", "Pocket002")
pocket3.Profile = sketch4
pocket3.Length = 2

sketch5 = body.newObject("Sketcher::SketchObject", "Sketch004")
sketch5.AttachmentSupport = (doc.getObject("XY_Plane"), [""])
sketch5.MapMode = "FlatFace"
sketch5.AttachmentOffset = App.Placement(Vector(0, 0, 2), App.Rotation())
sketch5.addGeometry(Part.Circle(Vector(-58, 30, 0), Vector(0, 0, 1), 0.5), False)
sketch5.addGeometry(Part.Circle(Vector(-58, 57, 0), Vector(0, 0, 1), 0.5), False)
sketch5.addGeometry(Part.Circle(Vector(-46, 30, 0), Vector(0, 0, 1), 0.5), False)
sketch5.addGeometry(Part.Circle(Vector(-46, 57, 0), Vector(0, 0, 1), 0.5), False)
sketch5.addGeometry(Part.Circle(Vector(46, 30, 0), Vector(0, 0, 1), 0.5), False)
sketch5.addGeometry(Part.Circle(Vector(46, 57, 0), Vector(0, 0, 1), 0.5), False)
sketch5.addGeometry(Part.Circle(Vector(58, 30, 0), Vector(0, 0, 1), 0.5), False)
sketch5.addGeometry(Part.Circle(Vector(58, 57, 0), Vector(0, 0, 1), 0.5), False)
sketch5.addGeometry(Part.Circle(Vector(-58, 27.5, 0), Vector(0, 0, 1), 0.5), False)
sketch5.addGeometry(Part.Circle(Vector(-58, 59.5, 0), Vector(0, 0, 1), 0.5), False)
sketch5.addGeometry(Part.Circle(Vector(-46, 59.5, 0), Vector(0, 0, 1), 0.5), False)
sketch5.addGeometry(Part.Circle(Vector(-46, 27.5, 0), Vector(0, 0, 1), 0.5), False)
sketch5.addGeometry(Part.Circle(Vector(46, 59.5, 0), Vector(0, 0, 1), 0.5), False)
sketch5.addGeometry(Part.Circle(Vector(58, 59.5, 0), Vector(0, 0, 1), 0.5), False)
sketch5.addGeometry(Part.Circle(Vector(46, 27.5, 0), Vector(0, 0, 1), 0.5), False)
sketch5.addGeometry(Part.Circle(Vector(58, 27.5, 0), Vector(0, 0, 1), 0.5), False)
sketch5.addGeometry(Part.Circle(Vector(12.5, -39.8, 0), Vector(0, 0, 1), 0.5), False)
sketch5.addGeometry(Part.Circle(Vector(39.5, -39.8, 0), Vector(0, 0, 1), 0.5), False)
sketch5.addConstraint(Sketcher.Constraint("Equal", 0, 1))
sketch5.addConstraint(Sketcher.Constraint("Equal", 1, 2))
sketch5.addConstraint(Sketcher.Constraint("Equal", 2, 3))
sketch5.addConstraint(Sketcher.Constraint("Equal", 3, 4))
sketch5.addConstraint(Sketcher.Constraint("Equal", 4, 5))
sketch5.addConstraint(Sketcher.Constraint("Equal", 5, 6))
sketch5.addConstraint(Sketcher.Constraint("Equal", 6, 7))
sketch5.addConstraint(Sketcher.Constraint("Equal", 7, 8))
sketch5.addConstraint(Sketcher.Constraint("Equal", 8, 9))
sketch5.addConstraint(Sketcher.Constraint("Equal", 9, 10))
sketch5.addConstraint(Sketcher.Constraint("Equal", 10, 11))
sketch5.addConstraint(Sketcher.Constraint("Equal", 11, 12))
sketch5.addConstraint(Sketcher.Constraint("Equal", 12, 13))
sketch5.addConstraint(Sketcher.Constraint("Equal", 13, 14))
sketch5.addConstraint(Sketcher.Constraint("Equal", 14, 15))
sketch5.addConstraint(Sketcher.Constraint("Equal", 15, 16))
sketch5.addConstraint(Sketcher.Constraint("Equal", 16, 17))
sketch5.addConstraint(Sketcher.Constraint("Symmetric", 2, 3, 4, 3, -2))
sketch5.addConstraint(Sketcher.Constraint("Symmetric", 3, 3, 5, 3, -2))
sketch5.addConstraint(Sketcher.Constraint("Symmetric", 0, 3, 6, 3, -2))
sketch5.addConstraint(Sketcher.Constraint("Symmetric", 1, 3, 7, 3, -2))
sketch5.addConstraint(Sketcher.Constraint("Symmetric", 10, 3, 12, 3, -2))
sketch5.addConstraint(Sketcher.Constraint("Symmetric", 9, 3, 13, 3, -2))
sketch5.addConstraint(Sketcher.Constraint("Symmetric", 11, 3, 14, 3, -2))
sketch5.addConstraint(Sketcher.Constraint("Symmetric", 8, 3, 15, 3, -2))
sketch5.addConstraint(Sketcher.Constraint("Horizontal", 0, 3, 2, 3))
sketch5.addConstraint(Sketcher.Constraint("Horizontal", 1, 3, 3, 3))
sketch5.addConstraint(Sketcher.Constraint("Horizontal", 9, 3, 10, 3))
sketch5.addConstraint(Sketcher.Constraint("Horizontal", 8, 3, 11, 3))
sketch5.addConstraint(Sketcher.Constraint("Horizontal", 16, 3, 17, 3))
sketch5.addConstraint(Sketcher.Constraint("Vertical", 0, 3, 1, 3))
sketch5.addConstraint(Sketcher.Constraint("Vertical", 2, 3, 3, 3))
sketch5.addConstraint(Sketcher.Constraint("Vertical", 1, 3, 8, 3))
sketch5.addConstraint(Sketcher.Constraint("Vertical", 8, 3, 9, 3))
sketch5.addConstraint(Sketcher.Constraint("Vertical", 3, 3, 10, 3))
sketch5.addConstraint(Sketcher.Constraint("Vertical", 10, 3, 11, 3))
sketch5.addConstraint(Sketcher.Constraint("Diameter", 0, Q("1 mm")))
sketch5.addConstraint(Sketcher.Constraint("DistanceX", 0, 3, -1, 1, Q("58 mm")))
sketch5.addConstraint(Sketcher.Constraint("DistanceY", -1, 1, 0, 3, Q("30 mm")))
sketch5.addConstraint(Sketcher.Constraint("DistanceY", -1, 1, 1, 3, Q("57 mm")))
sketch5.addConstraint(Sketcher.Constraint("DistanceX", 2, 3, -1, 1, Q("46 mm")))
sketch5.addConstraint(Sketcher.Constraint("DistanceY", 8, 3, 9, 3, Q("32 mm")))
sketch5.addConstraint(Sketcher.Constraint("DistanceX", 16, 3, 17, 3, Q("27 mm")))
sketch5.addConstraint(Sketcher.Constraint("DistanceY", -1, 1, 8, 3, Q("27.5 mm")))
sketch5.addConstraint(Sketcher.Constraint("DistanceX", -1, 1, 16, 3, Q("12.5 mm")))
sketch5.addConstraint(Sketcher.Constraint("DistanceY", 16, 3, -1, 1, Q("39.75 mm")))
pocket4 = body.newObject("PartDesign::Pocket", "Pocket003")
pocket4.Profile = sketch5
pocket4.Length = 2

doc.recompute()
